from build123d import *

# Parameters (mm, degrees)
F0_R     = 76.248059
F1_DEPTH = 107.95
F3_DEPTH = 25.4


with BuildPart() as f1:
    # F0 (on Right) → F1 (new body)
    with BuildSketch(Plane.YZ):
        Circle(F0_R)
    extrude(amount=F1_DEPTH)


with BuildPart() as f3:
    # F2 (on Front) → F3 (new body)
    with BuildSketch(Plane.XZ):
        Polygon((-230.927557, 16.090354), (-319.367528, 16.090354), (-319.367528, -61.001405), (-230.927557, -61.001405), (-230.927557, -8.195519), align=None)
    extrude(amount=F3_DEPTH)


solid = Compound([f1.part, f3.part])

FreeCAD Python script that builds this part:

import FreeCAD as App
import Part
import Sketcher
from FreeCAD import Vector
Q = App.Units.Quantity

doc = App.newDocument("Part")
body = doc.addObject("PartDesign::Body", "Body")

# Sketch on YZ plane
sketch1 = body.newObject("Sketcher::SketchObject", "Sketch")
sketch1.AttachmentSupport = (doc.getObject("YZ_Plane"), [""])
sketch1.MapMode = "FlatFace"
sketch1.addGeometry(Part.Circle(Vector(0, 0, 0), Vector(0, 0, 1), 76.248059), False)
sketch1.addConstraint([
    Sketcher.Constraint("Coincident", 0, 3, -1, 1),
    Sketcher.Constraint("Diameter", 0, Q("152.496118 mm")),
])
pad1 = body.newObject("PartDesign::Pad", "Pad")
pad1.Profile = sketch1
pad1.Length = Q("4.25 in")
body2 = doc.addObject("PartDesign::Body", "Body001")

# Sketch on XZ plane
sketch2 = body2.newObject("Sketcher::SketchObject", "Sketch001")
sketch2.AttachmentSupport = (doc.getObject("XZ_Plane001"), [""])
sketch2.MapMode = "FlatFace"
sketch2.addGeometry([
    Part.LineSegment(Vector(-230.927557, 16.090354, 0), Vector(-319.367528, 16.090354, 0)),
    Part.LineSegment(Vector(-319.367528, 16.090354, 0), Vector(-319.367528, -61.001405, 0)),
    Part.LineSegment(Vector(-319.367528, -61.001405, 0), Vector(-230.927557, -61.001405, 0)),
    Part.LineSegment(Vector(-230.927557, -61.001405, 0), Vector(-230.927557, 16.090354, 0)),
], False)
sketch2.addConstraint([
    Sketcher.Constraint("Coincident", 0, 2, 1, 1),
    Sketcher.Constraint("Coincident", 1, 2, 2, 1),
    Sketcher.Constraint("Coincident", 2, 2, 3, 1),
    Sketcher.Constraint("Coincident", 3, 2, 0, 1),
    Sketcher.Constraint("Horizontal", 0),
    Sketcher.Constraint("Vertical", 1),
    Sketcher.Constraint("Horizontal", 2),
    Sketcher.Constraint("Vertical", 3),
    Sketcher.Constraint("DistanceX", 0, 2, 0, 1, Q("88.439971 mm")),
    Sketcher.Constraint("DistanceY", 1, 2, 1, 1, Q("77.091759 mm")),
    Sketcher.Constraint("DistanceX", 0, 2, -1, 1, Q("319.367528 mm")),
    Sketcher.Constraint("DistanceY", -1, 1, 0, 2, Q("16.090354 mm")),
])
pad2 = body2.newObject("PartDesign::Pad", "Pad001")
pad2.Profile = sketch2
pad2.Length = Q("1 in")

doc.recompute()
